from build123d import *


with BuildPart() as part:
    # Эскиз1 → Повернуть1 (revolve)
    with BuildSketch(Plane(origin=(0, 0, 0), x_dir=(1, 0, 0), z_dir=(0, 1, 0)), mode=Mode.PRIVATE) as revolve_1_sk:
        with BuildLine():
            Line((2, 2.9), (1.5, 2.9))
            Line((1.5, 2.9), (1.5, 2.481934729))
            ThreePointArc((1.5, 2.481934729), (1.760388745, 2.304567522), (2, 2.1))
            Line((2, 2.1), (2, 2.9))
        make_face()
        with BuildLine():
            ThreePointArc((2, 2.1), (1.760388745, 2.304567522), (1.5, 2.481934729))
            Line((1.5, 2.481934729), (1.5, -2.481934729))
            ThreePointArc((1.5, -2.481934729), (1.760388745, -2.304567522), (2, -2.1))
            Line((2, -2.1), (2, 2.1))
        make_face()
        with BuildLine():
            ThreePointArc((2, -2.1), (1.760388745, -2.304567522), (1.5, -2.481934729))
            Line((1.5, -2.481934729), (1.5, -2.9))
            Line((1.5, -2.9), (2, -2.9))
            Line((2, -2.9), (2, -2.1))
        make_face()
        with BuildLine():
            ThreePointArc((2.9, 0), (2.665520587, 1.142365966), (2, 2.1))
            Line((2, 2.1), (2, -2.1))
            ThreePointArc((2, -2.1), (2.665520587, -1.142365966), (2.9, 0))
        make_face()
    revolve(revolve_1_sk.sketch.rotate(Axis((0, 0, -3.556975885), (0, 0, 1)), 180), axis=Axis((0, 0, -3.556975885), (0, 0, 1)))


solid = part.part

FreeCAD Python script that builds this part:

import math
import FreeCAD as App
import Part
import Sketcher
Q = App.Units.Quantity

doc = App.newDocument("Part")
body = doc.addObject("PartDesign::Body", "Body")

# Sketch on XZ plane
sketch1 = body.newObject("Sketcher::SketchObject", "Sketch")
sketch1.AttachmentSupport = (doc.getObject("XZ_Plane"), [""])
sketch1.MapMode = "FlatFace"
sketch1.addGeometry([
    Part.LineSegment(App.Vector(2, -2.9, 0), App.Vector(1.5, -2.9, 0)),  # 0
    Part.LineSegment(App.Vector(1.5, -2.9, 0), App.Vector(1.5, 2.9, 0)),  # 1
    Part.LineSegment(App.Vector(1.5, 2.9, 0), App.Vector(2, 2.9, 0)),  # 2
    Part.LineSegment(App.Vector(2, 2.9, 0), App.Vector(2, 2.1, 0)),  # 3
    Part.ArcOfCircle(Part.Circle(App.Vector(0, 0, 0), App.Vector(0, 0, 1), 2.9), math.radians(0), math.radians(46.397181)),  # 4
    Part.ArcOfCircle(Part.Circle(App.Vector(0, 0, 0), App.Vector(0, 0, 1), 2.9), math.radians(-46.397181), math.radians(0)),  # 5
    Part.LineSegment(App.Vector(2, -2.1, 0), App.Vector(2, -2.9, 0)),  # 6
], False)
sketch1.addConstraint([
    Sketcher.Constraint("Coincident", 0, 2, 1, 1),
    Sketcher.Constraint("Coincident", 1, 2, 2, 1),
    Sketcher.Constraint("Coincident", 2, 2, 3, 1),
    Sketcher.Constraint("Coincident", 3, 2, 4, 2),
    Sketcher.Constraint("Tangent", 4, 1, 5, 2),
    Sketcher.Constraint("Coincident", 5, 1, 6, 1),
    Sketcher.Constraint("Coincident", 6, 2, 0, 1),
    Sketcher.Constraint("Horizontal", 0),
    Sketcher.Constraint("Vertical", 1),
    Sketcher.Constraint("Horizontal", 2),
    Sketcher.Constraint("Vertical", 3),
    Sketcher.Constraint("Vertical", 6),
    Sketcher.Constraint("Coincident", 4, 3, -1, 1),
    Sketcher.Constraint("Equal", 4, 5),
    Sketcher.Constraint("Symmetric", 2, 2, 6, 2, -1),
    Sketcher.Constraint("PointOnObject", 4, 1, -1),
    Sketcher.Constraint("Radius", 4, Q("2.9 mm")),
    Sketcher.Constraint("DistanceX", 0, 2, 0, 1, Q("0.5 mm")),
    Sketcher.Constraint("DistanceY", 1, 1, 1, 2, Q("5.8 mm")),
    Sketcher.Constraint("DistanceY", 3, 2, 3, 1, Q("0.8 mm")),
])
revolution = body.newObject("PartDesign::Revolution", "Revolution")
revolution.Profile = sketch1
revolution.ReferenceAxis = (sketch1, ["V_Axis"])
revolution.Angle = 360

doc.recompute()
